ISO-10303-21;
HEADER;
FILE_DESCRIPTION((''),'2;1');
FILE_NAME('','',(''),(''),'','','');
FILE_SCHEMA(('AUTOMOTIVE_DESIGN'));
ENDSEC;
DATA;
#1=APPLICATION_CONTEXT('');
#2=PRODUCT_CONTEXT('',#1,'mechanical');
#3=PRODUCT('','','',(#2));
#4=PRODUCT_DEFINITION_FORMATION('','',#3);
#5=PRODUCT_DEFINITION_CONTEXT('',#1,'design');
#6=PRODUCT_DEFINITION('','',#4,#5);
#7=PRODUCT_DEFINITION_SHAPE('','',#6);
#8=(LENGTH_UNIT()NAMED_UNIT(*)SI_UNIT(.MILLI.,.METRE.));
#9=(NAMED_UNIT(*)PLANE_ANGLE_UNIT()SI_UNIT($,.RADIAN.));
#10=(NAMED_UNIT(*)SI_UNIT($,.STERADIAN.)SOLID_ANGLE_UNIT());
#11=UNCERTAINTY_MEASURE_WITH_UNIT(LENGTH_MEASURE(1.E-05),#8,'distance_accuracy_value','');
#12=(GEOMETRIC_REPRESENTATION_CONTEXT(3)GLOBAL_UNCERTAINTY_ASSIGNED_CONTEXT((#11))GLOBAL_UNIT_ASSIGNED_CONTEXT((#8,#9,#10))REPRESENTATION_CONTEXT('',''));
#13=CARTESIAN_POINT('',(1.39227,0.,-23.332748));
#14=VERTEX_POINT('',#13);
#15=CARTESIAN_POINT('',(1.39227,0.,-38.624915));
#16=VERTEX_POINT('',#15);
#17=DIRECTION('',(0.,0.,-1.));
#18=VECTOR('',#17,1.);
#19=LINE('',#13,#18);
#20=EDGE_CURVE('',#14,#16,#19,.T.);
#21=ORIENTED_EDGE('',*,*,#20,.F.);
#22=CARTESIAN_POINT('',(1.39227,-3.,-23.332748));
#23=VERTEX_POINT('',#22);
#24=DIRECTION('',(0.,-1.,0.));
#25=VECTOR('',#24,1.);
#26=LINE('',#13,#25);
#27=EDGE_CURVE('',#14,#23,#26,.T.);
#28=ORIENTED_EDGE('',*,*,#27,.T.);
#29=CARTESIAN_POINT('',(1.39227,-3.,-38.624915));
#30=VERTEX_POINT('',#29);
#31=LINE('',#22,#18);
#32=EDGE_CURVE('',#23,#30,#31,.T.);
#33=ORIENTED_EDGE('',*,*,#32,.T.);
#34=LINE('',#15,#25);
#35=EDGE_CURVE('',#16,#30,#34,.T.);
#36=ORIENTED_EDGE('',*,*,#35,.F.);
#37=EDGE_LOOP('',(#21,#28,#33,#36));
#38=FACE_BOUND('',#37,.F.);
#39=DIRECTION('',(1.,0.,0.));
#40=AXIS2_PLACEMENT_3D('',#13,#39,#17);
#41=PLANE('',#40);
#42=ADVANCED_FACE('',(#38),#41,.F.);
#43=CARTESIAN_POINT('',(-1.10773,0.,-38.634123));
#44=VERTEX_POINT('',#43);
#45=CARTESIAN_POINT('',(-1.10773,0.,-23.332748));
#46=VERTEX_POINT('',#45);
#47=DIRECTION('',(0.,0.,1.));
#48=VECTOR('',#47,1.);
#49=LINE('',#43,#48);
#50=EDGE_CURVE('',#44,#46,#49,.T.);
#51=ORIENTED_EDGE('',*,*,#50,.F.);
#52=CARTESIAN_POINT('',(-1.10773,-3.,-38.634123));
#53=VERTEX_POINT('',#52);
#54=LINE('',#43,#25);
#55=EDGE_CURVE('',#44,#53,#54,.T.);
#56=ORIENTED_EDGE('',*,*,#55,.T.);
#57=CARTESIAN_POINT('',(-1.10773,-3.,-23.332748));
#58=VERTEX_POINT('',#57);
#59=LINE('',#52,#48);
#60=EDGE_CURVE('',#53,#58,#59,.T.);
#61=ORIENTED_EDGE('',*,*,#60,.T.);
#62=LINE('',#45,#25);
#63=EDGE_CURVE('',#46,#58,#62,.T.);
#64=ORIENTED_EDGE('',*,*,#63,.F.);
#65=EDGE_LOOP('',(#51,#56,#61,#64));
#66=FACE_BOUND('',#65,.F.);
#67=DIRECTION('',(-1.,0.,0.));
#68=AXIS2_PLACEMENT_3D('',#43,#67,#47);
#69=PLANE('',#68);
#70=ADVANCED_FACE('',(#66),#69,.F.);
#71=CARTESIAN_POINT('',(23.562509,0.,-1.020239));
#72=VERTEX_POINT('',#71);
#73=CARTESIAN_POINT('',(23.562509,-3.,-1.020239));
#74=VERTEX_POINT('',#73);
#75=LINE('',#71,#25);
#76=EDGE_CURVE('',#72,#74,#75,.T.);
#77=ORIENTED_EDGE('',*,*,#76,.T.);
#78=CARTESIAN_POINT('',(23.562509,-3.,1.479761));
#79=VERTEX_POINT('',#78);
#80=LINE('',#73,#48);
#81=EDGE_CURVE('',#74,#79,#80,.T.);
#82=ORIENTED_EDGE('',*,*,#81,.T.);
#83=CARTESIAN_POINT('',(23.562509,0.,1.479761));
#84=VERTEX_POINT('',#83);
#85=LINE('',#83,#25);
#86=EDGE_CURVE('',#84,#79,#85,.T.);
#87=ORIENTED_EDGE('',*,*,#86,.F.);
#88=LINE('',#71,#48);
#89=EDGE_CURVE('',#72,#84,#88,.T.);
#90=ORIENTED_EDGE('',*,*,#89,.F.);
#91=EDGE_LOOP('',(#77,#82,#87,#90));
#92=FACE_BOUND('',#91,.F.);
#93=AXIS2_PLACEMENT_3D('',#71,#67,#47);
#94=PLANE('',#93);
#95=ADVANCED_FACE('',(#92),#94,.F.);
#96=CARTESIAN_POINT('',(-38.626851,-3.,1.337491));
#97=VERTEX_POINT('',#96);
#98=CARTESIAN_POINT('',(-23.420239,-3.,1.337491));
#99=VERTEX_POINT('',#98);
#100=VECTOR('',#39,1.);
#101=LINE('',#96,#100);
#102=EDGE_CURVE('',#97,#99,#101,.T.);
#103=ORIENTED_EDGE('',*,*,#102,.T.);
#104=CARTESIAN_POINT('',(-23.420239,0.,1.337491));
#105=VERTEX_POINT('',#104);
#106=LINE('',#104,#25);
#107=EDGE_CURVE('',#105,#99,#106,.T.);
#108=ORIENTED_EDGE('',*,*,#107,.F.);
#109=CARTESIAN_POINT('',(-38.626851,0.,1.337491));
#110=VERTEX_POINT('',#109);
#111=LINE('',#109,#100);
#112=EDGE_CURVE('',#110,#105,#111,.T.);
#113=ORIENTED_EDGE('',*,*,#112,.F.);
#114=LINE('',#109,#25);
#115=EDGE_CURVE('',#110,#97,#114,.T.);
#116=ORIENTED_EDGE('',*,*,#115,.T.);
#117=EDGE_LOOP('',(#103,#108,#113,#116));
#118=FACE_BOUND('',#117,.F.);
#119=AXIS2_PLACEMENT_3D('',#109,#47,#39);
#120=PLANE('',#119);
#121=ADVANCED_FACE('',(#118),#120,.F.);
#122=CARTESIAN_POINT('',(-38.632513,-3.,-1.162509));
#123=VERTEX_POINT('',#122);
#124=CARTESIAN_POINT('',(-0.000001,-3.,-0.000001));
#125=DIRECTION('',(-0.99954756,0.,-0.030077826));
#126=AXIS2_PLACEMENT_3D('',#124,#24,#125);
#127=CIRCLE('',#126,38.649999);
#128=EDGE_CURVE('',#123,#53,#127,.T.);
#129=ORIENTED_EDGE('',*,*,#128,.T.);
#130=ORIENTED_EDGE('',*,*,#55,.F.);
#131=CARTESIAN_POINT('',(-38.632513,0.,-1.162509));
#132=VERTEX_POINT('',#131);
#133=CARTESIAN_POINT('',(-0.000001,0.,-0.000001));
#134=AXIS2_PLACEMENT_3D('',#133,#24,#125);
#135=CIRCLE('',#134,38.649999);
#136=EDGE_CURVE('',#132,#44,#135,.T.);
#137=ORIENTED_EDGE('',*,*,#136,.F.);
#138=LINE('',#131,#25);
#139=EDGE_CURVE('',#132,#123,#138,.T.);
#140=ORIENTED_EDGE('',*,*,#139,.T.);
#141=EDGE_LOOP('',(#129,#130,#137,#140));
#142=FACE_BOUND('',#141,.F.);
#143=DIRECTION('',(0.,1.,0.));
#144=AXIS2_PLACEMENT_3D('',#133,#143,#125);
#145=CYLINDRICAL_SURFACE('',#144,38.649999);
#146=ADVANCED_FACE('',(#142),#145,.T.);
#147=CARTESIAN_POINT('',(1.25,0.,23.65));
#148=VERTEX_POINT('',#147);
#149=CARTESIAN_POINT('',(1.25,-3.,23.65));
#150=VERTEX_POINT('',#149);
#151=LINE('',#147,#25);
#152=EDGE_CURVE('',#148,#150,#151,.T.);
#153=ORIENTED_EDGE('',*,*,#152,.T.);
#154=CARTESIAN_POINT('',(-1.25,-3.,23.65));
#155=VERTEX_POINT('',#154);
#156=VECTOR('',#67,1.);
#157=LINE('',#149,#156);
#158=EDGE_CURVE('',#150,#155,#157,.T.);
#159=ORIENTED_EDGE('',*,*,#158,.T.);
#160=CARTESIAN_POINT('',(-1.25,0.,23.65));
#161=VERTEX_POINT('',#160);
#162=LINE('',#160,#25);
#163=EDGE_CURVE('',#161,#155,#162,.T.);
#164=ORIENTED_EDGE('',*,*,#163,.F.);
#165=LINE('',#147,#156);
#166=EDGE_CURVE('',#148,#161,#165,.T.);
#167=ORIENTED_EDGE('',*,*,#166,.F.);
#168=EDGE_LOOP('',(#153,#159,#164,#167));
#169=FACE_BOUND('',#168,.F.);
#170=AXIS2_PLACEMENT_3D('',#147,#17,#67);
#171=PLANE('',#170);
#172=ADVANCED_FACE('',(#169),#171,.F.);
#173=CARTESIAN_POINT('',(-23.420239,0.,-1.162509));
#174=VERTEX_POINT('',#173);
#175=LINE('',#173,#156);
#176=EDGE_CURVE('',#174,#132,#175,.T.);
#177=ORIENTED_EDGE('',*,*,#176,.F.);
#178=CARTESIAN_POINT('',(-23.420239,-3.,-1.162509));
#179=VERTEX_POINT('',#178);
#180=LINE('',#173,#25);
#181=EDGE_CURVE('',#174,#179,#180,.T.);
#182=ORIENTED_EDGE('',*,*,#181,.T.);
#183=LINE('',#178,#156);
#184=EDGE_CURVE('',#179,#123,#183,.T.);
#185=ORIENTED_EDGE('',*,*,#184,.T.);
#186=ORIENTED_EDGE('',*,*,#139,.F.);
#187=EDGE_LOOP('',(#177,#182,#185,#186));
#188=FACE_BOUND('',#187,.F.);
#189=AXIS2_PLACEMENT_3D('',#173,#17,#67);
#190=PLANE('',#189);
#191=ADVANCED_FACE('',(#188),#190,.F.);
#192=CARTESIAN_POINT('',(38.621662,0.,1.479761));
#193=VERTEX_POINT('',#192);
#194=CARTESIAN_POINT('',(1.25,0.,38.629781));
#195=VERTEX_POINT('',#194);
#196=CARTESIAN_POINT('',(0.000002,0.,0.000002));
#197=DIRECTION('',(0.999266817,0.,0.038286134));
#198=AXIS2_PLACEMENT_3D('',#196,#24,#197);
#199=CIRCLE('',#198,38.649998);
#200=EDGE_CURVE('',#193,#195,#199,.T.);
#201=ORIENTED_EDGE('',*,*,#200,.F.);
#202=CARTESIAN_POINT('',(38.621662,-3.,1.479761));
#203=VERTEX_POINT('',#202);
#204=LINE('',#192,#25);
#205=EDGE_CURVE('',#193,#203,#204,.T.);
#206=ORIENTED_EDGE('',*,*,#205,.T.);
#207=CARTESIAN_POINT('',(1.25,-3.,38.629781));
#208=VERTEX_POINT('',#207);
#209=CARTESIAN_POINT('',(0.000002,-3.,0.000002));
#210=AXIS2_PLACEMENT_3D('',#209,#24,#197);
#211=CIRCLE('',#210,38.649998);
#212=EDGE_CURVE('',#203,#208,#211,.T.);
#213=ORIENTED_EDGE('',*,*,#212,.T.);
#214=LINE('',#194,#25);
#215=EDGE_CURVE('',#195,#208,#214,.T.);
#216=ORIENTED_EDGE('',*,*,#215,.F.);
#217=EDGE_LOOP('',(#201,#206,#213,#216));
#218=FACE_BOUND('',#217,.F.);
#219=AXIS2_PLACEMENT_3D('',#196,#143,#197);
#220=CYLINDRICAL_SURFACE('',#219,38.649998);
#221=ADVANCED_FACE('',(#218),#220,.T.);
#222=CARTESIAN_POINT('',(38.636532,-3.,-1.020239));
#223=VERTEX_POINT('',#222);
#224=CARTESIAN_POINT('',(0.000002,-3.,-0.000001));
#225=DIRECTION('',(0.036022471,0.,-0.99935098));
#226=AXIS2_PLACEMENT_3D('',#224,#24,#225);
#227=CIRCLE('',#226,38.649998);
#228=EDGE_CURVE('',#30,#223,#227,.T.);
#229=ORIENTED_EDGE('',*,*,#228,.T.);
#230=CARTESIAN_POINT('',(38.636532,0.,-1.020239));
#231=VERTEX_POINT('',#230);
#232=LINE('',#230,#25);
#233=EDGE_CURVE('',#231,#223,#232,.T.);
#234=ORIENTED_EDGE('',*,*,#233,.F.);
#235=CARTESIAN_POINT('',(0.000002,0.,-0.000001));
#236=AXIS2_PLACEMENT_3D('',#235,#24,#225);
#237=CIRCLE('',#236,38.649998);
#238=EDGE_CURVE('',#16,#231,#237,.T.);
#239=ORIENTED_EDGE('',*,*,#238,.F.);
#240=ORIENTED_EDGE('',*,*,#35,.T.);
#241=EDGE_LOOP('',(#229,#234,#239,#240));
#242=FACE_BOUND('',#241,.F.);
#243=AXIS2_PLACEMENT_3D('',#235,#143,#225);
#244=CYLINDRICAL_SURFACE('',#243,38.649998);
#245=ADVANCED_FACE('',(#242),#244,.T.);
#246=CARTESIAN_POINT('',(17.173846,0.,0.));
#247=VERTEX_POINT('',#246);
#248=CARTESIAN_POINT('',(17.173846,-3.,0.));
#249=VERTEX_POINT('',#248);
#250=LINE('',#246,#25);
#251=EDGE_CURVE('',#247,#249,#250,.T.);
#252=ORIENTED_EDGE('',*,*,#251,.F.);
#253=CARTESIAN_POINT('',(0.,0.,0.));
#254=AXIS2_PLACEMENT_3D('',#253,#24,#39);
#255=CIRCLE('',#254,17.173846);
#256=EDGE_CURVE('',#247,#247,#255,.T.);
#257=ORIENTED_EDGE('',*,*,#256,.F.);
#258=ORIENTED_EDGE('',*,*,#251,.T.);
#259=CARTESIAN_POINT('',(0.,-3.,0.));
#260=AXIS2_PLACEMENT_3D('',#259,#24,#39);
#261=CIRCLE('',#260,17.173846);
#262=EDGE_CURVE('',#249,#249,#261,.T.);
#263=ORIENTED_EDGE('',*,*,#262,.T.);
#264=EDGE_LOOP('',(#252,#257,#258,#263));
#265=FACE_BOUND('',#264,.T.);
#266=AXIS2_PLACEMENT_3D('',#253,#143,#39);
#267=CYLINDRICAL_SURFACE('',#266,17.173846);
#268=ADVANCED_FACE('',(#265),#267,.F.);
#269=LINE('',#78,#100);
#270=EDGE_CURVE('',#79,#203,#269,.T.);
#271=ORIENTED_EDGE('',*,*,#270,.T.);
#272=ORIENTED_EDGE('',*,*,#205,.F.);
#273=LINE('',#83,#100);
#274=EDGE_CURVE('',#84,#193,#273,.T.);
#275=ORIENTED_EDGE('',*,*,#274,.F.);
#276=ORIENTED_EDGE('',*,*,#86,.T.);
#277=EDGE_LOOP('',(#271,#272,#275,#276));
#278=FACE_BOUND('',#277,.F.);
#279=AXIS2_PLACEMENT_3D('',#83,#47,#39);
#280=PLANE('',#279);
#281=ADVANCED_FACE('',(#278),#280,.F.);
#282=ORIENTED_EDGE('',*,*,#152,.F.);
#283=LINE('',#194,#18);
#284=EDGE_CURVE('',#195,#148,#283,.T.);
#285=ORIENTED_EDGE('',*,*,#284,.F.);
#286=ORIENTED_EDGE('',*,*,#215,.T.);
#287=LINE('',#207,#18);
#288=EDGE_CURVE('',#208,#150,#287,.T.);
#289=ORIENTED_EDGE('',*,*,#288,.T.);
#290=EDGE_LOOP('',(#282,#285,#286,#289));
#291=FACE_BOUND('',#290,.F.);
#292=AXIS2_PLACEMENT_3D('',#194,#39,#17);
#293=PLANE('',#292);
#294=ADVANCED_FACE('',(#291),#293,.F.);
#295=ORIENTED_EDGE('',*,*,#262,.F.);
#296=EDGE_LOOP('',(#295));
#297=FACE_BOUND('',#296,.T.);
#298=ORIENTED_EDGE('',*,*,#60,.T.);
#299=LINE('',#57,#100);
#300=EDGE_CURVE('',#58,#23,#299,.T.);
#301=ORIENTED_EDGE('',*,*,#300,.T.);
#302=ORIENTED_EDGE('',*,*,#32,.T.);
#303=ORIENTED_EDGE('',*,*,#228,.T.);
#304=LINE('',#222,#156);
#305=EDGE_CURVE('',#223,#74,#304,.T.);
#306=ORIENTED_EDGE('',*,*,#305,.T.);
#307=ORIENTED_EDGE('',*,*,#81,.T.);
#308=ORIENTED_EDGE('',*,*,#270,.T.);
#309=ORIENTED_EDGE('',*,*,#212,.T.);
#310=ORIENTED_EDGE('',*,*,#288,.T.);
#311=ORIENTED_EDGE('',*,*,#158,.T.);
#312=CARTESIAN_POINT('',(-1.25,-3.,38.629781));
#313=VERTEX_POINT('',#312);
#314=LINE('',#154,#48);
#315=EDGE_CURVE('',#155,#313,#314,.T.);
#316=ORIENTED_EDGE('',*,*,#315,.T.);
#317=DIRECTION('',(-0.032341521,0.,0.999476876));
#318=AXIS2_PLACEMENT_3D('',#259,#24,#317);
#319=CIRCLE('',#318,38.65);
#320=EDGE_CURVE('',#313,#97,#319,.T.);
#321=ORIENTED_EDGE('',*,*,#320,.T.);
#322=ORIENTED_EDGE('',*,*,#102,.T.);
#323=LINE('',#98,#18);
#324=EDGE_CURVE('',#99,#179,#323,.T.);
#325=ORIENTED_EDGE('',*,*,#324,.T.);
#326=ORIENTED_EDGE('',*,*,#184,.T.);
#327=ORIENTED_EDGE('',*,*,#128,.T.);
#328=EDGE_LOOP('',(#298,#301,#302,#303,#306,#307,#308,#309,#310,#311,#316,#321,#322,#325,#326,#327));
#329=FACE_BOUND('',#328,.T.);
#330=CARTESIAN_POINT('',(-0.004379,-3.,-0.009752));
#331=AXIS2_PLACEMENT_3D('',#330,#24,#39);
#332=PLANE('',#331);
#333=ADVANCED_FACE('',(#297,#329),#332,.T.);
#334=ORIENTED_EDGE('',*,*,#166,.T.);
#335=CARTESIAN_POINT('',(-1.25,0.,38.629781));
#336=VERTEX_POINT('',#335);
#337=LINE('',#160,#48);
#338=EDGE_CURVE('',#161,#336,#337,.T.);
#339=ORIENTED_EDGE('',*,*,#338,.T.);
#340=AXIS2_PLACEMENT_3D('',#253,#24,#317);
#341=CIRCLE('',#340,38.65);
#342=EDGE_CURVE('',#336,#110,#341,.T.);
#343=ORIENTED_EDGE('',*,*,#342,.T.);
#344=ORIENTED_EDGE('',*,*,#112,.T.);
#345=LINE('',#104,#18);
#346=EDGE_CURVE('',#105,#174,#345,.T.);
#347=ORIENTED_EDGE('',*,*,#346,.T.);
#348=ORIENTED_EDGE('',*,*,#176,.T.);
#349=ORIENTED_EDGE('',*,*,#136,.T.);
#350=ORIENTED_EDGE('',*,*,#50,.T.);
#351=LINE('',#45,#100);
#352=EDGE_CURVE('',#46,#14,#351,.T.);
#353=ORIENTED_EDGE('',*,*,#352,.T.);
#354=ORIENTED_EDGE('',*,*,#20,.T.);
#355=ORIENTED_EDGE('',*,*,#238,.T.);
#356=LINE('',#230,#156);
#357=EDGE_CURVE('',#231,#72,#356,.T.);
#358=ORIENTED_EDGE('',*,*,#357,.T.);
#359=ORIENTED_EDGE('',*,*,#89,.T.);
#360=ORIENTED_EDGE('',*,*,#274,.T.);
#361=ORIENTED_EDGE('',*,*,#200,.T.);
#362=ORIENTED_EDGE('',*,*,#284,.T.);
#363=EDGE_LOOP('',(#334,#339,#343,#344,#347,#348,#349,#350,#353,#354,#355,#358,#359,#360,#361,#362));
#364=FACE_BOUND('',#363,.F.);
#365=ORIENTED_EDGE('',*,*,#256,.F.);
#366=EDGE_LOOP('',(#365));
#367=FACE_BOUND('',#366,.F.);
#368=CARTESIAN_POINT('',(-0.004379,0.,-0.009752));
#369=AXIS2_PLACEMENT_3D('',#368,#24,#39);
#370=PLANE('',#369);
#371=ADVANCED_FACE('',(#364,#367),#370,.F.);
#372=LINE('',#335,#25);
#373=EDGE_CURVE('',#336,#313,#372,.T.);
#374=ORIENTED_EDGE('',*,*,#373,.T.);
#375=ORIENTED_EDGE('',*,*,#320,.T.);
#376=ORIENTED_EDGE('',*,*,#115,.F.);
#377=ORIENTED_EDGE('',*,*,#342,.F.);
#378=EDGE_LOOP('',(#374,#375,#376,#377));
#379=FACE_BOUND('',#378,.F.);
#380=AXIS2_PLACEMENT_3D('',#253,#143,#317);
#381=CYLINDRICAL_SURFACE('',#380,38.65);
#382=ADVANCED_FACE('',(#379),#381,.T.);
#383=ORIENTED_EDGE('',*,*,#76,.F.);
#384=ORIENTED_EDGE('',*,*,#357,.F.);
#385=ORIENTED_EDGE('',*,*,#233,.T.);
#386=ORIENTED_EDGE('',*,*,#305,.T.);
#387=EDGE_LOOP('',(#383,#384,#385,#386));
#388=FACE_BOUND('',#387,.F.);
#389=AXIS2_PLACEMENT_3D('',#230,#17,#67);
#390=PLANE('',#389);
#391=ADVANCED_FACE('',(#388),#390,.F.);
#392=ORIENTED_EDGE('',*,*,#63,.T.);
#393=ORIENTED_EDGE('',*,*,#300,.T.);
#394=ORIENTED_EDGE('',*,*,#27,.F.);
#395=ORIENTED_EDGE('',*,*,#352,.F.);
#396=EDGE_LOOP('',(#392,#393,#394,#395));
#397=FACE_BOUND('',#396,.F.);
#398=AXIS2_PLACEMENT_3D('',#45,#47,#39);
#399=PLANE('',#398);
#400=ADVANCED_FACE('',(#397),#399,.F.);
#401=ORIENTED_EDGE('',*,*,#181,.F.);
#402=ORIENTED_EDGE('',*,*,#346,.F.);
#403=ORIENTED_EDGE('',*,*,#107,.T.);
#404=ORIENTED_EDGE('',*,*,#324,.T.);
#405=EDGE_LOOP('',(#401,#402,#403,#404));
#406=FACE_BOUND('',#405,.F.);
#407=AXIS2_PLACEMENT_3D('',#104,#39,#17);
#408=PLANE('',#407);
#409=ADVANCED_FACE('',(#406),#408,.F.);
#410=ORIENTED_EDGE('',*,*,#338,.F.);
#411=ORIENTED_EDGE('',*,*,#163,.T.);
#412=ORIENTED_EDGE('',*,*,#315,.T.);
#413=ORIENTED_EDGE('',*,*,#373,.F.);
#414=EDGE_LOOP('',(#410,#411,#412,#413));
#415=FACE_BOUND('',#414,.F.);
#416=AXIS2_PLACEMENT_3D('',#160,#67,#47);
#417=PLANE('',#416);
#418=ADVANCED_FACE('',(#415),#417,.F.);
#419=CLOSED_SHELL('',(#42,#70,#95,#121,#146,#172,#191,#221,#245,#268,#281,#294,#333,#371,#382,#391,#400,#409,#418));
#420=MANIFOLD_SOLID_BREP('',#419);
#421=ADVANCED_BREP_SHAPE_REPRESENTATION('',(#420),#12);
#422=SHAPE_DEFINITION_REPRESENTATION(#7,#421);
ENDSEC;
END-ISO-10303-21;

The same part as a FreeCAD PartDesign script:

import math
import FreeCAD as App
import Part
import Sketcher

V = App.Vector

doc = App.newDocument("Part")
body = doc.addObject("PartDesign::Body", "Body")

sketch1 = body.newObject("Sketcher::SketchObject", "Sketch")
sketch1.AttachmentSupport = (doc.getObject("XZ_Plane"), [""])
sketch1.MapMode = "FlatFace"
sketch1.addGeometry([
    Part.LineSegment(V(23.6, 1.5, 0), V(38.6, 1.5, 0)),
    Part.ArcOfCircle(Part.Circle(V(0, 0, 0), V(0, 0, 1), 38.6), math.radians(2), math.radians(88)),
    Part.LineSegment(V(1.2, 38.6, 0), V(1.2, 23.6, 0)),
    Part.LineSegment(V(1.2, 23.6, 0), V(-1.2, 23.6, 0)),
    Part.LineSegment(V(-1.2, 23.6, 0), V(-1.2, 38.6, 0)),
    Part.ArcOfCircle(Part.Circle(V(0, 0, 0), V(0, 0, 1), 38.6), math.radians(92), math.radians(178)),
    Part.LineSegment(V(-38.6, 1.3, 0), V(-23.4, 1.3, 0)),
    Part.LineSegment(V(-23.4, 1.3, 0), V(-23.4, -1.2, 0)),
    Part.LineSegment(V(-23.4, -1.2, 0), V(-38.6, -1.2, 0)),
    Part.ArcOfCircle(Part.Circle(V(0, 0, 0), V(0, 0, 1), 38.6), math.radians(-178), math.radians(-92)),
    Part.LineSegment(V(-1.1, -38.6, 0), V(-1.1, -23.3, 0)),
    Part.LineSegment(V(-1.1, -23.3, 0), V(1.4, -23.3, 0)),
    Part.LineSegment(V(1.4, -23.3, 0), V(1.4, -38.6, 0)),
    Part.ArcOfCircle(Part.Circle(V(0, 0, 0), V(0, 0, 1), 38.6), math.radians(-88), math.radians(-2)),
    Part.LineSegment(V(38.6, -1, 0), V(23.6, -1, 0)),
    Part.LineSegment(V(23.6, -1, 0), V(23.6, 1.5, 0)),
    Part.Circle(V(0, 0, 0), V(0, 0, 1), 17.2),
], False)
sketch1.addConstraint([
    Sketcher.Constraint("Coincident", 0, 2, 1, 1),
    Sketcher.Constraint("Coincident", 1, 2, 2, 1),
    Sketcher.Constraint("Coincident", 2, 2, 3, 1),
    Sketcher.Constraint("Coincident", 3, 2, 4, 1),
    Sketcher.Constraint("Coincident", 4, 2, 5, 1),
    Sketcher.Constraint("Coincident", 5, 2, 6, 1),
    Sketcher.Constraint("Coincident", 6, 2, 7, 1),
    Sketcher.Constraint("Coincident", 7, 2, 8, 1),
    Sketcher.Constraint("Coincident", 8, 2, 9, 1),
    Sketcher.Constraint("Coincident", 9, 2, 10, 1),
    Sketcher.Constraint("Coincident", 10, 2, 11, 1),
    Sketcher.Constraint("Coincident", 11, 2, 12, 1),
    Sketcher.Constraint("Coincident", 12, 2, 13, 1),
    Sketcher.Constraint("Coincident", 13, 2, 14, 1),
    Sketcher.Constraint("Coincident", 14, 2, 15, 1),
    Sketcher.Constraint("Coincident", 15, 2, 0, 1),
    Sketcher.Constraint("Horizontal", 0),
    Sketcher.Constraint("Vertical", 2),
    Sketcher.Constraint("Horizontal", 3),
    Sketcher.Constraint("Vertical", 4),
    Sketcher.Constraint("Horizontal", 6),
    Sketcher.Constraint("Vertical", 7),
    Sketcher.Constraint("Horizontal", 8),
    Sketcher.Constraint("Vertical", 10),
    Sketcher.Constraint("Horizontal", 11),
    Sketcher.Constraint("Vertical", 12),
    Sketcher.Constraint("Horizontal", 14),
    Sketcher.Constraint("Vertical", 15),
    Sketcher.Constraint("Coincident", 1, 3, -1, 1),
    Sketcher.Constraint("Coincident", 5, 3, -1, 1),
    Sketcher.Constraint("Coincident", 9, 3, -1, 1),
    Sketcher.Constraint("Coincident", 13, 3, -1, 1),
    Sketcher.Constraint("Coincident", 16, 3, -1, 1),
    Sketcher.Constraint("Equal", 5, 9),
    Sketcher.Constraint("Equal", 9, 13),
    Sketcher.Constraint("Symmetric", 1, 2, 4, 2, -2),
    Sketcher.Constraint("Equal", 3, 11),
    Sketcher.Constraint("Equal", 11, 7),
    Sketcher.Constraint("Equal", 7, 15),
    Sketcher.Constraint("Radius", 5, 38.65),
    Sketcher.Constraint("DistanceX", 3, 2, 3, 1, 2.5),
    Sketcher.Constraint("DistanceY", -1, 1, 2, 2, 23.65),
    Sketcher.Constraint("Diameter", 16, 34.347692),
    Sketcher.Constraint("DistanceX", 0, 1, 0, 2, 15.059153),
    Sketcher.Constraint("DistanceX", 6, 1, 6, 2, 15.206612),
    Sketcher.Constraint("DistanceX", 8, 2, 8, 1, 15.212274),
    Sketcher.Constraint("DistanceX", 14, 2, 14, 1, 15.074023),
    Sketcher.Constraint("DistanceY", 10, 1, 10, 2, 15.301375),
    Sketcher.Constraint("DistanceY", 12, 2, 12, 1, 15.292167),
])
pad1 = body.newObject("PartDesign::Pad", "Pad")
pad1.Profile = sketch1
pad1.Length = 3

doc.recompute()
